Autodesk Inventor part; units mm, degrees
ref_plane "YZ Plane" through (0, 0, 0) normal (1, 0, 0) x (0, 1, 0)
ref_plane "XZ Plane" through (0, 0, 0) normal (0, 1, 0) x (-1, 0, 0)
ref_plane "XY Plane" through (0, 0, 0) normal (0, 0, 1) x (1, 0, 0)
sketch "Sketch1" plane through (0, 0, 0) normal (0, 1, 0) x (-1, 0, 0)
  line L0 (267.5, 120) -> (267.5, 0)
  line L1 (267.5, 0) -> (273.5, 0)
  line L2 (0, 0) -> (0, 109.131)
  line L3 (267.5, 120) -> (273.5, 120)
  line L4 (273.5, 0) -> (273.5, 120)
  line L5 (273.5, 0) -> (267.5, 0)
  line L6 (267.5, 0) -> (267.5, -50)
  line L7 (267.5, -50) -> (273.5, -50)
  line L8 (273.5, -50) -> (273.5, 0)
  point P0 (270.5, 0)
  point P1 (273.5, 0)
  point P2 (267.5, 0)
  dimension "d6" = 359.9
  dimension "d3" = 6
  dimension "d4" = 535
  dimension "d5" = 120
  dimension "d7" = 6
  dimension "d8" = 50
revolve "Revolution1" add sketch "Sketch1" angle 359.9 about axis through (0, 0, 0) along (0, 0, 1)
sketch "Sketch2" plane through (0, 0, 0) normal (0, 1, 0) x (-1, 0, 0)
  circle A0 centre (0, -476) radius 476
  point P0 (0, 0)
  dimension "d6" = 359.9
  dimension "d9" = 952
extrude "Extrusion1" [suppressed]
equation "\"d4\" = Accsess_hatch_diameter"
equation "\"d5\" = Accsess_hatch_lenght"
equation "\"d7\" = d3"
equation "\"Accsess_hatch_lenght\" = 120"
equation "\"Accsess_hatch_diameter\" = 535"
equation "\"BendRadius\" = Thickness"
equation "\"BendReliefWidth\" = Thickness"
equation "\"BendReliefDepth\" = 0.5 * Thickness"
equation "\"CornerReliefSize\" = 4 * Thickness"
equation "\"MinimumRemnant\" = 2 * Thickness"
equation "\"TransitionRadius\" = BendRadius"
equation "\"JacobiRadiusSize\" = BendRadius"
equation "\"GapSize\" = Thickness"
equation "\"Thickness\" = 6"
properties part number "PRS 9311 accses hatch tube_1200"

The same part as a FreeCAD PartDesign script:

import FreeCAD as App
import Part
import Sketcher
Q = App.Units.Quantity


def add_polygon(sketch, points):
    """Adds a closed chain of lines whose ends are joined by coincident constraints."""
    first, n = sketch.GeometryCount, len(points)
    for a, b in zip(points, points[1:] + points[:1]):
        sketch.addGeometry(Part.LineSegment(App.Vector(*a, 0), App.Vector(*b, 0)), False)
    for i in range(n):
        sketch.addConstraint(Sketcher.Constraint("Coincident", first + i, 2, first + (i + 1) % n, 1))

doc = App.newDocument("Part")
body = doc.addObject("PartDesign::Body", "Body")

sketch1 = body.newObject("Sketcher::SketchObject", "Sketch")
sketch1.AttachmentSupport = (doc.getObject("XZ_Plane"), [""])
sketch1.MapMode = "FlatFace"
add_polygon(sketch1, [(-274, 120), (-268, 120), (-268, -50), (-274, -50)])
sketch1.addConstraint([
    Sketcher.Constraint("Horizontal", 0),
    Sketcher.Constraint("Vertical", 1),
    Sketcher.Constraint("Horizontal", 2),
    Sketcher.Constraint("Vertical", 3),
    Sketcher.Constraint("DistanceX", 0, 1, 0, 2, Q("6 mm")),
    Sketcher.Constraint("DistanceY", -1, 1, 0, 2, Q("120 mm")),
    Sketcher.Constraint("DistanceY", 1, 2, -1, 1, Q("50 mm")),
    Sketcher.Constraint("DistanceX", 0, 2, -1, 1, Q("267.5 mm")),
])
revolution = body.newObject("PartDesign::Revolution", "Revolution")
revolution.Profile = sketch1
revolution.ReferenceAxis = (sketch1, ["V_Axis"])
revolution.Angle = 359.9

doc.recompute()
